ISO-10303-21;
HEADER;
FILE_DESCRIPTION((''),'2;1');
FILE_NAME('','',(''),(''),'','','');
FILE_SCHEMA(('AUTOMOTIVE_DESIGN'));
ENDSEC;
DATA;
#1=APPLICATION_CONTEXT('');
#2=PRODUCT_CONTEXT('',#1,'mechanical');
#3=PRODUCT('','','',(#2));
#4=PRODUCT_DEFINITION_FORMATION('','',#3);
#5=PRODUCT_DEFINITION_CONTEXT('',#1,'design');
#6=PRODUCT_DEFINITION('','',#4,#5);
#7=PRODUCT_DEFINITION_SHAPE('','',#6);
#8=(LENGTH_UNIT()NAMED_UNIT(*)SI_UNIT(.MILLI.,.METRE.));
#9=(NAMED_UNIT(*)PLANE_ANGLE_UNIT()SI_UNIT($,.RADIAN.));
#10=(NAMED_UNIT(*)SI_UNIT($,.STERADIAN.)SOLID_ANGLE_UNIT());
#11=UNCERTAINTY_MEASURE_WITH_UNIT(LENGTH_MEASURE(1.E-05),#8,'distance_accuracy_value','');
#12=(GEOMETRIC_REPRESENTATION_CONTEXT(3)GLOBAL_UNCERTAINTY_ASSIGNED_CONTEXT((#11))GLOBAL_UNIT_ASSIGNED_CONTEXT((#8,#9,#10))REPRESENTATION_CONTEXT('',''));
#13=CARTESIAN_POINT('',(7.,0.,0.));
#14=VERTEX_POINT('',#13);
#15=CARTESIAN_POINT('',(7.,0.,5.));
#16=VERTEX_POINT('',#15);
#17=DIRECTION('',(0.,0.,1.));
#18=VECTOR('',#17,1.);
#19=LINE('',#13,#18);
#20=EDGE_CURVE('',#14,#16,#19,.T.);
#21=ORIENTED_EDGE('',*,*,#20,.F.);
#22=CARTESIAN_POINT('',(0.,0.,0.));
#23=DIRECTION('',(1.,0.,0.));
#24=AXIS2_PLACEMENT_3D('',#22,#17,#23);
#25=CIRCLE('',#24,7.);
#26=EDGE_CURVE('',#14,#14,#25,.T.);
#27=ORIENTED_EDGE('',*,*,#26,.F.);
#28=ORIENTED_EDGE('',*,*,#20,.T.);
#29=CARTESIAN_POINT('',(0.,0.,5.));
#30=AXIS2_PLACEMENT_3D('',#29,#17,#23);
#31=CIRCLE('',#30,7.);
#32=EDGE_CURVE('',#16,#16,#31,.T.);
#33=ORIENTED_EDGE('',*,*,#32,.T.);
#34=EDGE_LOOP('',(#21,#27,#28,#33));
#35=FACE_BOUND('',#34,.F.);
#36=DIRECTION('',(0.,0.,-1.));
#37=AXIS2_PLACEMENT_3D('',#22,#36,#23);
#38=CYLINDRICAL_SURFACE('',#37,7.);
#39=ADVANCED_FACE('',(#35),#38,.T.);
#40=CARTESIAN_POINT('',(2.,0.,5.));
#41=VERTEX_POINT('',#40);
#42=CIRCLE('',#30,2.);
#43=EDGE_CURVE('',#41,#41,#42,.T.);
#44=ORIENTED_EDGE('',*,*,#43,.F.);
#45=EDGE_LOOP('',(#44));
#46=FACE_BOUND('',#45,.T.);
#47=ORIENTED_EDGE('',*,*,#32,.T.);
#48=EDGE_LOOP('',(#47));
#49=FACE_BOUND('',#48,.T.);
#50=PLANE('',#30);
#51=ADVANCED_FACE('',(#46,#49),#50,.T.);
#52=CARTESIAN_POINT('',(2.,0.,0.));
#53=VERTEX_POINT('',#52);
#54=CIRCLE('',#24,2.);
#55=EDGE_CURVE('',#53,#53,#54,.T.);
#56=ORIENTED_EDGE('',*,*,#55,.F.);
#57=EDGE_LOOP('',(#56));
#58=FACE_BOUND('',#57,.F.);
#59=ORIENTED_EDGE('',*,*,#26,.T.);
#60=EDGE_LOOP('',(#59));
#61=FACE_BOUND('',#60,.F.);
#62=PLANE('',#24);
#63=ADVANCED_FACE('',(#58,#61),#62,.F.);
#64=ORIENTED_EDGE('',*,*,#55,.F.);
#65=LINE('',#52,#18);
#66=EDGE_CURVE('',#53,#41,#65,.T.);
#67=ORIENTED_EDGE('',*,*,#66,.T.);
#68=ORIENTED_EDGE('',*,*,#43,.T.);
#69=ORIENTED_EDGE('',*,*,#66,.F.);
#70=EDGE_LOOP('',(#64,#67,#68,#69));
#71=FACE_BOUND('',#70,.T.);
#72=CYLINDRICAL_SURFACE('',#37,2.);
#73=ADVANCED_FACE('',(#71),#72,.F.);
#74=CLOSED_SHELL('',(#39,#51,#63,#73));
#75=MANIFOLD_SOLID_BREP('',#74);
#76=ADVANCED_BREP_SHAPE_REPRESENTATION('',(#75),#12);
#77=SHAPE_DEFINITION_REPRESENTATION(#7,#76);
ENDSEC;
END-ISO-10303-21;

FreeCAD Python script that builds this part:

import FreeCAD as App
import Part
import Sketcher
from FreeCAD import Vector
Q = App.Units.Quantity

doc = App.newDocument("Part")
body = doc.addObject("PartDesign::Body", "Body")

sketch1 = doc.addObject("Sketcher::SketchObject", "Sketch")
body.addObject(sketch1)
sketch1.AttachmentSupport = (doc.XY_Plane, [""])
sketch1.MapMode = "FlatFace"
sketch1.addGeometry(Part.Circle(Vector(0, 0, 0), Vector(0, 0, 1), 7), False)
sketch1.addGeometry(Part.Circle(Vector(0, 0, 0), Vector(0, 0, 1), 2), False)
sketch1.addConstraint(Sketcher.Constraint("Coincident", 0, 3, -1, 1))
sketch1.addConstraint(Sketcher.Constraint("Coincident", 1, 3, -1, 1))
sketch1.addConstraint(Sketcher.Constraint("Diameter", 0, Q("14 mm")))
sketch1.addConstraint(Sketcher.Constraint("Diameter", 1, Q("4 mm")))
pad1 = doc.addObject("PartDesign::Pad", "Pad")
body.addObject(pad1)
pad1.Profile = sketch1
pad1.Length = 5

doc.recompute()
